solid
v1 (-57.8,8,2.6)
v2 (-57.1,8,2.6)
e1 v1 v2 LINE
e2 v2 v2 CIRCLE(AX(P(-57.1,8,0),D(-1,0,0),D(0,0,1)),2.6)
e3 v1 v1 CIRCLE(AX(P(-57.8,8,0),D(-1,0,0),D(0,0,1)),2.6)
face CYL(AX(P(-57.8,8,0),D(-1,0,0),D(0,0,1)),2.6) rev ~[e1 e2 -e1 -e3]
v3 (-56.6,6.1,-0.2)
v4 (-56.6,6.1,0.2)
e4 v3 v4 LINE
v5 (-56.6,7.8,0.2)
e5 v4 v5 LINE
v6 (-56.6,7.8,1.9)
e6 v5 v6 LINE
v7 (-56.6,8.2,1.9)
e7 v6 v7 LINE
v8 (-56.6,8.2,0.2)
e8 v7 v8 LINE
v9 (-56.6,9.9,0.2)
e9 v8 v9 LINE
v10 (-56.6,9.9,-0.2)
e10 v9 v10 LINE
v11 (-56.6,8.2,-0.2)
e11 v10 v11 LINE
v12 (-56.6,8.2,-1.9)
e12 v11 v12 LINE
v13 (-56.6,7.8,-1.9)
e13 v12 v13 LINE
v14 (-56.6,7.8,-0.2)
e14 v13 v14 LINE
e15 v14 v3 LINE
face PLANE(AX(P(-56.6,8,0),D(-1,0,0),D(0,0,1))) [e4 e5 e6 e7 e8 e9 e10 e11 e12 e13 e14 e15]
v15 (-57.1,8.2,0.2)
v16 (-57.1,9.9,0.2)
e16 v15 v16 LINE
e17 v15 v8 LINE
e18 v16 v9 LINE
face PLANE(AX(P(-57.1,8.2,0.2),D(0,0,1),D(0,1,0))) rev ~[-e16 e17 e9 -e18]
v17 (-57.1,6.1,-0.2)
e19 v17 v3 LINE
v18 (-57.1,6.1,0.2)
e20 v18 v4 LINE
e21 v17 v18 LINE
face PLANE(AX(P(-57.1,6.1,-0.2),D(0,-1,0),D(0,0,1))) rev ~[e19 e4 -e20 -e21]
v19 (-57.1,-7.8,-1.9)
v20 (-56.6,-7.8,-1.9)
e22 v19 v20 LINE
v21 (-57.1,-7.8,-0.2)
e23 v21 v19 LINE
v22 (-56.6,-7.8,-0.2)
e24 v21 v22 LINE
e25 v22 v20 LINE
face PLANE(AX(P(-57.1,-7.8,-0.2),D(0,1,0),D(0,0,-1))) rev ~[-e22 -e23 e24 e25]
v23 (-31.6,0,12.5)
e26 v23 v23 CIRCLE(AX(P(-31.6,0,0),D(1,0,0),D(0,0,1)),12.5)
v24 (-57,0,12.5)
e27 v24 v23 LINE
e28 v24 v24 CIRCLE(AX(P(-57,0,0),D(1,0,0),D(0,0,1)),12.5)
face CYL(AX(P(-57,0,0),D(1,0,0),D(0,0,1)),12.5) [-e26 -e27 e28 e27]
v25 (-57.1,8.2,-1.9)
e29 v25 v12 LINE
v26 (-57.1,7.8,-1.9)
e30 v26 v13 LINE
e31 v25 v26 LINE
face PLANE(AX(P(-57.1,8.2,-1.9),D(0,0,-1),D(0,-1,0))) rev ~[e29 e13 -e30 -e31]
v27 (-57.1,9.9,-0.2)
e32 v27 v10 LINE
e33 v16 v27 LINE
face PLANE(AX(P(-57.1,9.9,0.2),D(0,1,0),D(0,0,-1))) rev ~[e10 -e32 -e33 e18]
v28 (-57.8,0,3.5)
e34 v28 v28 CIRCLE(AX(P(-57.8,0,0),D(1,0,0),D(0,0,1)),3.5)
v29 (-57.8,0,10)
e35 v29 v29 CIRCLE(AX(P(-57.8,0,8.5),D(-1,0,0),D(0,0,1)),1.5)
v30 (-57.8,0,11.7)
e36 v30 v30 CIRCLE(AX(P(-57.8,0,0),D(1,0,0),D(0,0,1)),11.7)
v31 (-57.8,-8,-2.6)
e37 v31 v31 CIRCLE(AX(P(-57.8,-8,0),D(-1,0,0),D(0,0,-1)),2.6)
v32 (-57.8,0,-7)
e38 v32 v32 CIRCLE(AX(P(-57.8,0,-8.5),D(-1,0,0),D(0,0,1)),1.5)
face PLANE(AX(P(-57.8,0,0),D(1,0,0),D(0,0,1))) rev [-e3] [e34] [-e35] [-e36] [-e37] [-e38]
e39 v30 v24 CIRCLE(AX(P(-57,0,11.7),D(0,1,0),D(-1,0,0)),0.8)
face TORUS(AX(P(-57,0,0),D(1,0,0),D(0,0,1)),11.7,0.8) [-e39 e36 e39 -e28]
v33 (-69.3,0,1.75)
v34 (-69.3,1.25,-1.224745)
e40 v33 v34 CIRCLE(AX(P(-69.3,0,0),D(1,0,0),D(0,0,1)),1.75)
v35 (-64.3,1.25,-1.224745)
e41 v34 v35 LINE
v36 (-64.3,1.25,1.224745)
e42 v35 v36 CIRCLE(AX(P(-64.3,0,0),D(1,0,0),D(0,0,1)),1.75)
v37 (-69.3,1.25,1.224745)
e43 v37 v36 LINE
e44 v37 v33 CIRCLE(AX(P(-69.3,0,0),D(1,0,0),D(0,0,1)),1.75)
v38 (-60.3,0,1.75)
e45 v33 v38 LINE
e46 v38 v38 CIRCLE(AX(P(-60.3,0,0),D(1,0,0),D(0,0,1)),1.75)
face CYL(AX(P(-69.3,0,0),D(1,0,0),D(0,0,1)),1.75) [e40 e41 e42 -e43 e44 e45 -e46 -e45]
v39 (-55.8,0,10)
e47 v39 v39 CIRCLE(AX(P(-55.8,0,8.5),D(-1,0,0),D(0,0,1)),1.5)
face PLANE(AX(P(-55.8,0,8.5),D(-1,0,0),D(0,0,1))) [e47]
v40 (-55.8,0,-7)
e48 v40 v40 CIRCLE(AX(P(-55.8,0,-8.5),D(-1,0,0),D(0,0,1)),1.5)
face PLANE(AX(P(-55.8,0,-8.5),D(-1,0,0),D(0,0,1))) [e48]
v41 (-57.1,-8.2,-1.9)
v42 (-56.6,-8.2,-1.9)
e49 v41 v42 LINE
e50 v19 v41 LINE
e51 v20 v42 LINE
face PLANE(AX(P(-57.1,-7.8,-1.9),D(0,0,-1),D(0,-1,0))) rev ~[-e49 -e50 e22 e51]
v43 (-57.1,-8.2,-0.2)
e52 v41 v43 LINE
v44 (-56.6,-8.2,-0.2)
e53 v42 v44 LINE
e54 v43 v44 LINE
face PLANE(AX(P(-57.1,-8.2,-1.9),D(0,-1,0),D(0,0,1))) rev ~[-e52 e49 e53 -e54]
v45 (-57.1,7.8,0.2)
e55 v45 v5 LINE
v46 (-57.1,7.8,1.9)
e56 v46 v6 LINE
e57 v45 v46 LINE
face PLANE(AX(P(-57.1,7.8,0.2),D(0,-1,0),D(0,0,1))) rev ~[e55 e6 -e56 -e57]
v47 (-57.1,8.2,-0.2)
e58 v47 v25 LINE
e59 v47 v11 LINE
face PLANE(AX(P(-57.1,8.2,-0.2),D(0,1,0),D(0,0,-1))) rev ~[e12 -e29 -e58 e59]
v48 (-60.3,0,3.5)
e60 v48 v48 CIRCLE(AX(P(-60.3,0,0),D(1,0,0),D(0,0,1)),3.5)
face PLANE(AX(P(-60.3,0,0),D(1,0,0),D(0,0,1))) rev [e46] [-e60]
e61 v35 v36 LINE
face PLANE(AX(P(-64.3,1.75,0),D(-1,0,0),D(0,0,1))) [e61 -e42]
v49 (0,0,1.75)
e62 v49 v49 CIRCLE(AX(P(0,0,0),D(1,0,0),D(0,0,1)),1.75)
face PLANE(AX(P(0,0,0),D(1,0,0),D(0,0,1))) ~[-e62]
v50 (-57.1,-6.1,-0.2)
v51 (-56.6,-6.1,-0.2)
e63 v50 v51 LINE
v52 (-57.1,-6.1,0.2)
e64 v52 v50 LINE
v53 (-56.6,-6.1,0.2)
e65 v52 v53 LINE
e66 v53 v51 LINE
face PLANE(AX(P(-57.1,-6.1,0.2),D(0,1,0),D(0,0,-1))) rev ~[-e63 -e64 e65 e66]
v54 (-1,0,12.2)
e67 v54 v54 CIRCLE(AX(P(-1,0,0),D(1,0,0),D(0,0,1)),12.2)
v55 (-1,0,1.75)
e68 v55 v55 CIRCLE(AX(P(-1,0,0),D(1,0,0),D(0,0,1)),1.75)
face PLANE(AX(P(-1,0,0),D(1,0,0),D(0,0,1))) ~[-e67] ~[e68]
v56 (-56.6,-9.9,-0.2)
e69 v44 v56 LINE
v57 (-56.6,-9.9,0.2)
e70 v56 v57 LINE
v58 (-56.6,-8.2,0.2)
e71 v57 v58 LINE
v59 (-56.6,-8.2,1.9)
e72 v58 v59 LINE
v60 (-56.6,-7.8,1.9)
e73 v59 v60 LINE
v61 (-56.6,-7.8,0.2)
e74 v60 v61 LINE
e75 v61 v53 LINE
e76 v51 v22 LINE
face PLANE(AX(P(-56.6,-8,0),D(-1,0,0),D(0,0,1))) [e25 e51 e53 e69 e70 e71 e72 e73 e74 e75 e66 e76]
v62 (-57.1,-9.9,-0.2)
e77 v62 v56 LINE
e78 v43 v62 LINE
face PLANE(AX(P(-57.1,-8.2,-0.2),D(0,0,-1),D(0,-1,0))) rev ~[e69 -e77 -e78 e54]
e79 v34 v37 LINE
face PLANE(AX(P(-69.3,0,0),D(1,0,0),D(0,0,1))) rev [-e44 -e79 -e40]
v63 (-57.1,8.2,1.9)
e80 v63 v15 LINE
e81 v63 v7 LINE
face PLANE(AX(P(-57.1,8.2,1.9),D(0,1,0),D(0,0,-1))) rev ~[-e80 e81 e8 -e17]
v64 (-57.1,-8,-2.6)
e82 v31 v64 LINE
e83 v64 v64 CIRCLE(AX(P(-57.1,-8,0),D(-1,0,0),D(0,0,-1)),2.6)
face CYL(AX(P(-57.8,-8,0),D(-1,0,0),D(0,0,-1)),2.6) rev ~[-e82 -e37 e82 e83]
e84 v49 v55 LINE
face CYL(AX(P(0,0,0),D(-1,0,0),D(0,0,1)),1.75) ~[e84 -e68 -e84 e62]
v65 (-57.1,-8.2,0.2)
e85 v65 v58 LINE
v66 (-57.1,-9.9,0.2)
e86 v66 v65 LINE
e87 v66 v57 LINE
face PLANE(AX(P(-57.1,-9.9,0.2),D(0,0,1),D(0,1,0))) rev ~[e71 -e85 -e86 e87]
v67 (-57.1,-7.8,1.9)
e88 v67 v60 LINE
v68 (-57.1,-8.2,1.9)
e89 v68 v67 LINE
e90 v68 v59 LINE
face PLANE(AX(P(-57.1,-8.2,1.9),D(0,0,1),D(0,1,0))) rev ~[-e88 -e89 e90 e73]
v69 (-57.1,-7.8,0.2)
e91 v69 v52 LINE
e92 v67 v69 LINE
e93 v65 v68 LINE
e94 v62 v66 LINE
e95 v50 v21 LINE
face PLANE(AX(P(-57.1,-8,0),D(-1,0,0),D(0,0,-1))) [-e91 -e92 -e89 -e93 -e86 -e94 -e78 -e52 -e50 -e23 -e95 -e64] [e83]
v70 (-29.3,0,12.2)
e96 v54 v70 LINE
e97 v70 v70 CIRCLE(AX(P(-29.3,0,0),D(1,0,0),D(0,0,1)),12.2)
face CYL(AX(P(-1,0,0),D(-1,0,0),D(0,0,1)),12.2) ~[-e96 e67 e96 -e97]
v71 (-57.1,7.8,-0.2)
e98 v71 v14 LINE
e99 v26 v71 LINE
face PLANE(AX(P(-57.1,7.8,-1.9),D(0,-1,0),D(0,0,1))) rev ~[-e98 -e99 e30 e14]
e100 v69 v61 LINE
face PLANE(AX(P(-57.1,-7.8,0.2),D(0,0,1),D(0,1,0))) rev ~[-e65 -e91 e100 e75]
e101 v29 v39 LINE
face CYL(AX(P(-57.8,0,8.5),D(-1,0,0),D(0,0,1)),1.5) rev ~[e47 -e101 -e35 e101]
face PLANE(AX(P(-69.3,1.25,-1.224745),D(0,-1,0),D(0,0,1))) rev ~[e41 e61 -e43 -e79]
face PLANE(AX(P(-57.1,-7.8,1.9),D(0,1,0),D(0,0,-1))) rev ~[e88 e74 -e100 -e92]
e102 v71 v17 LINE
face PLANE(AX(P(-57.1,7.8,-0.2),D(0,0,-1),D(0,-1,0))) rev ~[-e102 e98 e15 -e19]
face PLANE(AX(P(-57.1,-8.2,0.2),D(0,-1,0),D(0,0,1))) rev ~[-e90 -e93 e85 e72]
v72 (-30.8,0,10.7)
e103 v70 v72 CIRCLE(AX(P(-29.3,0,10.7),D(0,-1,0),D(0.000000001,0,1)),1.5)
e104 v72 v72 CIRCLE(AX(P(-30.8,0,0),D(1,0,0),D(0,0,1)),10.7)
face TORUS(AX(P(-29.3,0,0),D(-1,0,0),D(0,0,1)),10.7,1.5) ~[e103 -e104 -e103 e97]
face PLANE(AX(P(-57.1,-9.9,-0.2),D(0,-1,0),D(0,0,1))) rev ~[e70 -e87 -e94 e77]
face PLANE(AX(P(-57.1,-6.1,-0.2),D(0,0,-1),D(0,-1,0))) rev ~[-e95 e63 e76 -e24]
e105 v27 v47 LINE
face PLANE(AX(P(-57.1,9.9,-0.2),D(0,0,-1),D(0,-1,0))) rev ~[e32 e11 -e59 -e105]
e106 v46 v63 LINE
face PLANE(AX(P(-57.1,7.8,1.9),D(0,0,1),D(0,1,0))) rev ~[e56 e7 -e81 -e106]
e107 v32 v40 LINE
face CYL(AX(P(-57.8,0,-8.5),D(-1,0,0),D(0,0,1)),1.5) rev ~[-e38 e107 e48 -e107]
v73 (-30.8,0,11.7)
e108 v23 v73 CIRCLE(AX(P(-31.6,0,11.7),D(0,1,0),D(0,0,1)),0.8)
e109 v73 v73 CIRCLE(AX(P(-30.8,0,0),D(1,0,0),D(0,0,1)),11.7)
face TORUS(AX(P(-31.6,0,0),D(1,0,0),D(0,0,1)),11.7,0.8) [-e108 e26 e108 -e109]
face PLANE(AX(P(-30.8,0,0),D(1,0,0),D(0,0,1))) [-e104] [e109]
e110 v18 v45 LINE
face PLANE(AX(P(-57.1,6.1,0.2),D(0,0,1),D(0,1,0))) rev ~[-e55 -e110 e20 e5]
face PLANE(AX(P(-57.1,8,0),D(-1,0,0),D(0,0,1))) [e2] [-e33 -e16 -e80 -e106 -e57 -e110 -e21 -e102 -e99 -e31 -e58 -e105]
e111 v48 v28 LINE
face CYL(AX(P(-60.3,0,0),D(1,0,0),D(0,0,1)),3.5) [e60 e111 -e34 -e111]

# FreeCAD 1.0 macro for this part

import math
import FreeCAD as App
import Part
import Sketcher


def add_polygon(sketch, points):
    """Adds a closed chain of lines whose ends are joined by coincident constraints."""
    first, n = sketch.GeometryCount, len(points)
    for a, b in zip(points, points[1:] + points[:1]):
        sketch.addGeometry(Part.LineSegment(App.Vector(*a, 0), App.Vector(*b, 0)), False)
    for i in range(n):
        sketch.addConstraint(Sketcher.Constraint("Coincident", first + i, 2, first + (i + 1) % n, 1))

doc = App.newDocument("Part")
body = doc.addObject("PartDesign::Body", "Body")

# Sketch on XY plane
sketch1 = doc.addObject("Sketcher::SketchObject", "Sketch")
body.addObject(sketch1)
sketch1.AttachmentSupport = (doc.XY_Plane, [""])
sketch1.MapMode = "FlatFace"
sketch1.addGeometry([
    Part.LineSegment(App.Vector(0, 0, 0), App.Vector(0, 1.8, 0)),  # 0
    Part.LineSegment(App.Vector(0, 1.8, 0), App.Vector(-1, 1.8, 0)),  # 1
    Part.LineSegment(App.Vector(-1, 1.8, 0), App.Vector(-1, 12.2, 0)),  # 2
    Part.LineSegment(App.Vector(-1, 12.2, 0), App.Vector(-29.3, 12.2, 0)),  # 3
    Part.ArcOfCircle(Part.Circle(App.Vector(-29.3, 10.7, 0), App.Vector(0, 0, 1), 1.5), math.radians(90), math.radians(180)),  # 4
    Part.LineSegment(App.Vector(-30.8, 10.7, 0), App.Vector(-30.8, 0, 0)),  # 5
    Part.LineSegment(App.Vector(-30.8, 0, 0), App.Vector(0, 0, 0)),  # 6
], False)
sketch1.addConstraint([
    Sketcher.Constraint("Coincident", 0, 2, 1, 1),
    Sketcher.Constraint("Coincident", 1, 2, 2, 1),
    Sketcher.Constraint("Coincident", 2, 2, 3, 1),
    Sketcher.Constraint("Tangent", 3, 2, 4, 1),
    Sketcher.Constraint("Tangent", 4, 2, 5, 1),
    Sketcher.Constraint("Coincident", 5, 2, 6, 1),
    Sketcher.Constraint("Coincident", 6, 2, 0, 1),
    Sketcher.Constraint("Vertical", 0),
    Sketcher.Constraint("Horizontal", 1),
    Sketcher.Constraint("Vertical", 2),
    Sketcher.Constraint("Horizontal", 3),
    Sketcher.Constraint("Vertical", 5),
    Sketcher.Constraint("Horizontal", 6),
    Sketcher.Constraint("Coincident", 6, 2, -1, 1),
    Sketcher.Constraint("Radius", 4, 1.5),
    Sketcher.Constraint("DistanceX", 1, 2, 1, 1, 1.0),
    Sketcher.Constraint("DistanceX", 3, 2, 3, 1, 28.3),
    Sketcher.Constraint("DistanceY", 5, 2, 5, 1, 10.7),
    Sketcher.Constraint("DistanceY", 0, 1, 0, 2, 1.75),
])
revolution = doc.addObject("PartDesign::Revolution", "Revolution")
body.addObject(revolution)
revolution.Profile = sketch1
revolution.ReferenceAxis = (sketch1, ["H_Axis"])
revolution.Angle = 360

# Sketch on XY plane
sketch2 = doc.addObject("Sketcher::SketchObject", "Sketch001")
body.addObject(sketch2)
sketch2.AttachmentSupport = (doc.XY_Plane, [""])
sketch2.MapMode = "FlatFace"
sketch2.addGeometry([
    Part.LineSegment(App.Vector(-31.6, 12.5, 0), App.Vector(-57, 12.5, 0)),  # 0
    Part.ArcOfCircle(Part.Circle(App.Vector(-57, 11.7, 0), App.Vector(0, 0, 1), 0.8), math.radians(90), math.radians(180)),  # 1
    Part.LineSegment(App.Vector(-57.8, 11.7, 0), App.Vector(-57.8, 3.5, 0)),  # 2
    Part.LineSegment(App.Vector(-57.8, 3.5, 0), App.Vector(-60.3, 3.5, 0)),  # 3
    Part.LineSegment(App.Vector(-60.3, 3.5, 0), App.Vector(-60.3, 1.8, 0)),  # 4
    Part.LineSegment(App.Vector(-60.3, 1.8, 0), App.Vector(-69.3, 1.8, 0)),  # 5
    Part.LineSegment(App.Vector(-69.3, 1.8, 0), App.Vector(-69.3, 0, 0)),  # 6
    Part.LineSegment(App.Vector(-69.3, 0, 0), App.Vector(-30.8, 0, 0)),  # 7
    Part.LineSegment(App.Vector(-30.8, 0, 0), App.Vector(-30.8, 11.7, 0)),  # 8
    Part.ArcOfCircle(Part.Circle(App.Vector(-31.6, 11.7, 0), App.Vector(0, 0, 1), 0.8), math.radians(0), math.radians(90)),  # 9
], False)
sketch2.addConstraint([
    Sketcher.Constraint("Tangent", 0, 2, 1, 1),
    Sketcher.Constraint("Tangent", 1, 2, 2, 1),
    Sketcher.Constraint("Coincident", 2, 2, 3, 1),
    Sketcher.Constraint("Coincident", 3, 2, 4, 1),
    Sketcher.Constraint("Coincident", 4, 2, 5, 1),
    Sketcher.Constraint("Coincident", 5, 2, 6, 1),
    Sketcher.Constraint("Coincident", 6, 2, 7, 1),
    Sketcher.Constraint("Coincident", 7, 2, 8, 1),
    Sketcher.Constraint("Tangent", 8, 2, 9, 1),
    Sketcher.Constraint("Tangent", 9, 2, 0, 1),
    Sketcher.Constraint("Horizontal", 0),
    Sketcher.Constraint("Vertical", 2),
    Sketcher.Constraint("Horizontal", 3),
    Sketcher.Constraint("Vertical", 4),
    Sketcher.Constraint("Horizontal", 5),
    Sketcher.Constraint("Vertical", 6),
    Sketcher.Constraint("Horizontal", 7),
    Sketcher.Constraint("Vertical", 8),
    Sketcher.Constraint("Equal", 1, 9),
    Sketcher.Constraint("PointOnObject", 6, 2, -1),
    Sketcher.Constraint("Equal", 4, 6),
    Sketcher.Constraint("Radius", 1, 0.8),
    Sketcher.Constraint("DistanceX", 5, 2, 5, 1, 9.0),
    Sketcher.Constraint("DistanceX", 0, 2, 0, 1, 25.4),
    Sketcher.Constraint("DistanceX", 3, 2, 3, 1, 2.5),
    Sketcher.Constraint("DistanceY", 2, 2, 2, 1, 8.2),
    Sketcher.Constraint("DistanceY", 8, 1, 8, 2, 11.7),
    Sketcher.Constraint("DistanceX", 1, 3, -1, 1, 57.0),
])
revolution2 = doc.addObject("PartDesign::Revolution", "Revolution001")
body.addObject(revolution2)
revolution2.Profile = sketch2
revolution2.ReferenceAxis = (sketch2, ["H_Axis"])
revolution2.Angle = 360

# Sketch on YZ plane
sketch3 = doc.addObject("Sketcher::SketchObject", "Sketch002")
body.addObject(sketch3)
sketch3.AttachmentSupport = (doc.YZ_Plane, [""])
sketch3.MapMode = "FlatFace"
sketch3.AttachmentOffset = App.Placement(App.Vector(0, 0, -69.3), App.Rotation())
add_polygon(sketch3, [(2.2, -1.2), (1.2, -1.2), (1.2, 1.2), (2.2, 1.2)])  # lines 0-3
sketch3.addConstraint([
    Sketcher.Constraint("Horizontal", 0),
    Sketcher.Constraint("Vertical", 1),
    Sketcher.Constraint("Horizontal", 2),
    Sketcher.Constraint("Vertical", 3),
    Sketcher.Constraint("DistanceX", 0, 2, 0, 1, 1.0),
    Sketcher.Constraint("DistanceX", -1, 1, 0, 2, 1.25),
    Sketcher.Constraint("DistanceY", 1, 1, 1, 2, 2.44949),
    Sketcher.Constraint("DistanceY", 0, 2, -1, 1, 1.224745),
])
pocket1 = doc.addObject("PartDesign::Pocket", "Pocket")
body.addObject(pocket1)
pocket1.Profile = sketch3
pocket1.Length = 5
pocket1.Reversed = True

# Sketch on YZ plane
sketch4 = doc.addObject("Sketcher::SketchObject", "Sketch003")
body.addObject(sketch4)
sketch4.AttachmentSupport = (doc.YZ_Plane, [""])
sketch4.MapMode = "FlatFace"
sketch4.AttachmentOffset = App.Placement(App.Vector(0, 0, -57.8), App.Rotation())
sketch4.addGeometry([
    Part.Circle(App.Vector(0, -8.5, 0), App.Vector(0, 0, 1), 1.5),
    Part.Circle(App.Vector(0, 8.5, 0), App.Vector(0, 0, 1), 1.5),
], False)
sketch4.addConstraint([
    Sketcher.Constraint("Equal", 0, 1),
    Sketcher.Constraint("Symmetric", 0, 3, 1, 3, -1, 1),
    Sketcher.Constraint("PointOnObject", 0, 3, -2),
    Sketcher.Constraint("Diameter", 0, 3.0),
    Sketcher.Constraint("DistanceY", 0, 3, 1, 3, 17.0),
])
pocket2 = doc.addObject("PartDesign::Pocket", "Pocket001")
body.addObject(pocket2)
pocket2.Profile = sketch4
pocket2.Length = 2
pocket2.Reversed = True

# Sketch on YZ plane
sketch5 = doc.addObject("Sketcher::SketchObject", "Sketch004")
body.addObject(sketch5)
sketch5.AttachmentSupport = (doc.YZ_Plane, [""])
sketch5.MapMode = "FlatFace"
sketch5.AttachmentOffset = App.Placement(App.Vector(0, 0, -57.8), App.Rotation())
sketch5.addGeometry([
    Part.Circle(App.Vector(8, 0, 0), App.Vector(0, 0, 1), 2.6),
    Part.Circle(App.Vector(-8, 0, 0), App.Vector(0, 0, 1), 2.6),
], False)
sketch5.addConstraint([
    Sketcher.Constraint("Equal", 0, 1),
    Sketcher.Constraint("Symmetric", 0, 3, 1, 3, -1, 1),
    Sketcher.Constraint("PointOnObject", 0, 3, -1),
    Sketcher.Constraint("Diameter", 0, 5.2),
    Sketcher.Constraint("DistanceX", -1, 1, 0, 3, 8.0),
])
pocket3 = doc.addObject("PartDesign::Pocket", "Pocket002")
body.addObject(pocket3)
pocket3.Profile = sketch5
pocket3.Length = 0.7
pocket3.Reversed = True

# Sketch on YZ plane
sketch6 = doc.addObject("Sketcher::SketchObject", "Sketch005")
body.addObject(sketch6)
sketch6.AttachmentSupport = (doc.YZ_Plane, [""])
sketch6.MapMode = "FlatFace"
sketch6.AttachmentOffset = App.Placement(App.Vector(0, 0, -57.1), App.Rotation())
add_polygon(sketch6, [(9.9, 0.2), (9.9, -0.2), (8.2, -0.2), (8.2, -1.9), (7.8, -1.9), (7.8, -0.2), (6.1, -0.2), (6.1, 0.2), (7.8, 0.2), (7.8, 1.9), (8.2, 1.9), (8.2, 0.2)])  # lines 0-11
add_polygon(sketch6, [(-7.8, -0.2), (-7.8, -1.9), (-8.2, -1.9), (-8.2, -0.2), (-9.9, -0.2), (-9.9, 0.2), (-8.2, 0.2), (-8.2, 1.9), (-7.8, 1.9), (-7.8, 0.2), (-6.1, 0.2), (-6.1, -0.2)])  # lines 12-23
sketch6.addConstraint([
    Sketcher.Constraint("Vertical", 0),
    Sketcher.Constraint("Horizontal", 1),
    Sketcher.Constraint("Vertical", 2),
    Sketcher.Constraint("Horizontal", 3),
    Sketcher.Constraint("Vertical", 4),
    Sketcher.Constraint("Horizontal", 5),
    Sketcher.Constraint("Vertical", 6),
    Sketcher.Constraint("Horizontal", 7),
    Sketcher.Constraint("Vertical", 8),
    Sketcher.Constraint("Horizontal", 9),
    Sketcher.Constraint("Vertical", 10),
    Sketcher.Constraint("Horizontal", 11),
    Sketcher.Constraint("Vertical", 12),
    Sketcher.Constraint("Horizontal", 13),
    Sketcher.Constraint("Vertical", 14),
    Sketcher.Constraint("Horizontal", 15),
    Sketcher.Constraint("Vertical", 16),
    Sketcher.Constraint("Horizontal", 17),
    Sketcher.Constraint("Vertical", 18),
    Sketcher.Constraint("Horizontal", 19),
    Sketcher.Constraint("Vertical", 20),
    Sketcher.Constraint("Horizontal", 21),
    Sketcher.Constraint("Vertical", 22),
    Sketcher.Constraint("Horizontal", 23),
    Sketcher.Constraint("Symmetric", 8, 2, 12, 2, -1, 1),
    Sketcher.Constraint("Symmetric", 10, 2, 14, 2, -1, 1),
    Sketcher.Constraint("Symmetric", 0, 2, 16, 2, -1, 1),
    Sketcher.Constraint("Symmetric", 2, 2, 18, 2, -1, 1),
    Sketcher.Constraint("Symmetric", 4, 2, 20, 2, -1, 1),
    Sketcher.Constraint("Symmetric", 6, 2, 22, 2, -1, 1),
    Sketcher.Constraint("Symmetric", 3, 2, 12, 2, -2),
    Sketcher.Constraint("Symmetric", 1, 2, 14, 2, -2),
    Sketcher.Constraint("Horizontal", 1, 2, 4, 2),
    Sketcher.Constraint("Horizontal", 7, 2, 10, 2),
    Sketcher.Constraint("Equal", 1, 5),
    Sketcher.Constraint("Equal", 19, 0),
    Sketcher.Constraint("Equal", 23, 2),
    Sketcher.Constraint("DistanceX", 1, 2, 1, 1, 1.7),
    Sketcher.Constraint("DistanceX", 3, 2, 3, 1, 0.4),
    Sketcher.Constraint("DistanceX", 13, 2, 3, 2, 16.0),
])
pocket4 = doc.addObject("PartDesign::Pocket", "Pocket003")
body.addObject(pocket4)
pocket4.Profile = sketch6
pocket4.Length = 0.5
pocket4.Reversed = True

doc.recompute()
